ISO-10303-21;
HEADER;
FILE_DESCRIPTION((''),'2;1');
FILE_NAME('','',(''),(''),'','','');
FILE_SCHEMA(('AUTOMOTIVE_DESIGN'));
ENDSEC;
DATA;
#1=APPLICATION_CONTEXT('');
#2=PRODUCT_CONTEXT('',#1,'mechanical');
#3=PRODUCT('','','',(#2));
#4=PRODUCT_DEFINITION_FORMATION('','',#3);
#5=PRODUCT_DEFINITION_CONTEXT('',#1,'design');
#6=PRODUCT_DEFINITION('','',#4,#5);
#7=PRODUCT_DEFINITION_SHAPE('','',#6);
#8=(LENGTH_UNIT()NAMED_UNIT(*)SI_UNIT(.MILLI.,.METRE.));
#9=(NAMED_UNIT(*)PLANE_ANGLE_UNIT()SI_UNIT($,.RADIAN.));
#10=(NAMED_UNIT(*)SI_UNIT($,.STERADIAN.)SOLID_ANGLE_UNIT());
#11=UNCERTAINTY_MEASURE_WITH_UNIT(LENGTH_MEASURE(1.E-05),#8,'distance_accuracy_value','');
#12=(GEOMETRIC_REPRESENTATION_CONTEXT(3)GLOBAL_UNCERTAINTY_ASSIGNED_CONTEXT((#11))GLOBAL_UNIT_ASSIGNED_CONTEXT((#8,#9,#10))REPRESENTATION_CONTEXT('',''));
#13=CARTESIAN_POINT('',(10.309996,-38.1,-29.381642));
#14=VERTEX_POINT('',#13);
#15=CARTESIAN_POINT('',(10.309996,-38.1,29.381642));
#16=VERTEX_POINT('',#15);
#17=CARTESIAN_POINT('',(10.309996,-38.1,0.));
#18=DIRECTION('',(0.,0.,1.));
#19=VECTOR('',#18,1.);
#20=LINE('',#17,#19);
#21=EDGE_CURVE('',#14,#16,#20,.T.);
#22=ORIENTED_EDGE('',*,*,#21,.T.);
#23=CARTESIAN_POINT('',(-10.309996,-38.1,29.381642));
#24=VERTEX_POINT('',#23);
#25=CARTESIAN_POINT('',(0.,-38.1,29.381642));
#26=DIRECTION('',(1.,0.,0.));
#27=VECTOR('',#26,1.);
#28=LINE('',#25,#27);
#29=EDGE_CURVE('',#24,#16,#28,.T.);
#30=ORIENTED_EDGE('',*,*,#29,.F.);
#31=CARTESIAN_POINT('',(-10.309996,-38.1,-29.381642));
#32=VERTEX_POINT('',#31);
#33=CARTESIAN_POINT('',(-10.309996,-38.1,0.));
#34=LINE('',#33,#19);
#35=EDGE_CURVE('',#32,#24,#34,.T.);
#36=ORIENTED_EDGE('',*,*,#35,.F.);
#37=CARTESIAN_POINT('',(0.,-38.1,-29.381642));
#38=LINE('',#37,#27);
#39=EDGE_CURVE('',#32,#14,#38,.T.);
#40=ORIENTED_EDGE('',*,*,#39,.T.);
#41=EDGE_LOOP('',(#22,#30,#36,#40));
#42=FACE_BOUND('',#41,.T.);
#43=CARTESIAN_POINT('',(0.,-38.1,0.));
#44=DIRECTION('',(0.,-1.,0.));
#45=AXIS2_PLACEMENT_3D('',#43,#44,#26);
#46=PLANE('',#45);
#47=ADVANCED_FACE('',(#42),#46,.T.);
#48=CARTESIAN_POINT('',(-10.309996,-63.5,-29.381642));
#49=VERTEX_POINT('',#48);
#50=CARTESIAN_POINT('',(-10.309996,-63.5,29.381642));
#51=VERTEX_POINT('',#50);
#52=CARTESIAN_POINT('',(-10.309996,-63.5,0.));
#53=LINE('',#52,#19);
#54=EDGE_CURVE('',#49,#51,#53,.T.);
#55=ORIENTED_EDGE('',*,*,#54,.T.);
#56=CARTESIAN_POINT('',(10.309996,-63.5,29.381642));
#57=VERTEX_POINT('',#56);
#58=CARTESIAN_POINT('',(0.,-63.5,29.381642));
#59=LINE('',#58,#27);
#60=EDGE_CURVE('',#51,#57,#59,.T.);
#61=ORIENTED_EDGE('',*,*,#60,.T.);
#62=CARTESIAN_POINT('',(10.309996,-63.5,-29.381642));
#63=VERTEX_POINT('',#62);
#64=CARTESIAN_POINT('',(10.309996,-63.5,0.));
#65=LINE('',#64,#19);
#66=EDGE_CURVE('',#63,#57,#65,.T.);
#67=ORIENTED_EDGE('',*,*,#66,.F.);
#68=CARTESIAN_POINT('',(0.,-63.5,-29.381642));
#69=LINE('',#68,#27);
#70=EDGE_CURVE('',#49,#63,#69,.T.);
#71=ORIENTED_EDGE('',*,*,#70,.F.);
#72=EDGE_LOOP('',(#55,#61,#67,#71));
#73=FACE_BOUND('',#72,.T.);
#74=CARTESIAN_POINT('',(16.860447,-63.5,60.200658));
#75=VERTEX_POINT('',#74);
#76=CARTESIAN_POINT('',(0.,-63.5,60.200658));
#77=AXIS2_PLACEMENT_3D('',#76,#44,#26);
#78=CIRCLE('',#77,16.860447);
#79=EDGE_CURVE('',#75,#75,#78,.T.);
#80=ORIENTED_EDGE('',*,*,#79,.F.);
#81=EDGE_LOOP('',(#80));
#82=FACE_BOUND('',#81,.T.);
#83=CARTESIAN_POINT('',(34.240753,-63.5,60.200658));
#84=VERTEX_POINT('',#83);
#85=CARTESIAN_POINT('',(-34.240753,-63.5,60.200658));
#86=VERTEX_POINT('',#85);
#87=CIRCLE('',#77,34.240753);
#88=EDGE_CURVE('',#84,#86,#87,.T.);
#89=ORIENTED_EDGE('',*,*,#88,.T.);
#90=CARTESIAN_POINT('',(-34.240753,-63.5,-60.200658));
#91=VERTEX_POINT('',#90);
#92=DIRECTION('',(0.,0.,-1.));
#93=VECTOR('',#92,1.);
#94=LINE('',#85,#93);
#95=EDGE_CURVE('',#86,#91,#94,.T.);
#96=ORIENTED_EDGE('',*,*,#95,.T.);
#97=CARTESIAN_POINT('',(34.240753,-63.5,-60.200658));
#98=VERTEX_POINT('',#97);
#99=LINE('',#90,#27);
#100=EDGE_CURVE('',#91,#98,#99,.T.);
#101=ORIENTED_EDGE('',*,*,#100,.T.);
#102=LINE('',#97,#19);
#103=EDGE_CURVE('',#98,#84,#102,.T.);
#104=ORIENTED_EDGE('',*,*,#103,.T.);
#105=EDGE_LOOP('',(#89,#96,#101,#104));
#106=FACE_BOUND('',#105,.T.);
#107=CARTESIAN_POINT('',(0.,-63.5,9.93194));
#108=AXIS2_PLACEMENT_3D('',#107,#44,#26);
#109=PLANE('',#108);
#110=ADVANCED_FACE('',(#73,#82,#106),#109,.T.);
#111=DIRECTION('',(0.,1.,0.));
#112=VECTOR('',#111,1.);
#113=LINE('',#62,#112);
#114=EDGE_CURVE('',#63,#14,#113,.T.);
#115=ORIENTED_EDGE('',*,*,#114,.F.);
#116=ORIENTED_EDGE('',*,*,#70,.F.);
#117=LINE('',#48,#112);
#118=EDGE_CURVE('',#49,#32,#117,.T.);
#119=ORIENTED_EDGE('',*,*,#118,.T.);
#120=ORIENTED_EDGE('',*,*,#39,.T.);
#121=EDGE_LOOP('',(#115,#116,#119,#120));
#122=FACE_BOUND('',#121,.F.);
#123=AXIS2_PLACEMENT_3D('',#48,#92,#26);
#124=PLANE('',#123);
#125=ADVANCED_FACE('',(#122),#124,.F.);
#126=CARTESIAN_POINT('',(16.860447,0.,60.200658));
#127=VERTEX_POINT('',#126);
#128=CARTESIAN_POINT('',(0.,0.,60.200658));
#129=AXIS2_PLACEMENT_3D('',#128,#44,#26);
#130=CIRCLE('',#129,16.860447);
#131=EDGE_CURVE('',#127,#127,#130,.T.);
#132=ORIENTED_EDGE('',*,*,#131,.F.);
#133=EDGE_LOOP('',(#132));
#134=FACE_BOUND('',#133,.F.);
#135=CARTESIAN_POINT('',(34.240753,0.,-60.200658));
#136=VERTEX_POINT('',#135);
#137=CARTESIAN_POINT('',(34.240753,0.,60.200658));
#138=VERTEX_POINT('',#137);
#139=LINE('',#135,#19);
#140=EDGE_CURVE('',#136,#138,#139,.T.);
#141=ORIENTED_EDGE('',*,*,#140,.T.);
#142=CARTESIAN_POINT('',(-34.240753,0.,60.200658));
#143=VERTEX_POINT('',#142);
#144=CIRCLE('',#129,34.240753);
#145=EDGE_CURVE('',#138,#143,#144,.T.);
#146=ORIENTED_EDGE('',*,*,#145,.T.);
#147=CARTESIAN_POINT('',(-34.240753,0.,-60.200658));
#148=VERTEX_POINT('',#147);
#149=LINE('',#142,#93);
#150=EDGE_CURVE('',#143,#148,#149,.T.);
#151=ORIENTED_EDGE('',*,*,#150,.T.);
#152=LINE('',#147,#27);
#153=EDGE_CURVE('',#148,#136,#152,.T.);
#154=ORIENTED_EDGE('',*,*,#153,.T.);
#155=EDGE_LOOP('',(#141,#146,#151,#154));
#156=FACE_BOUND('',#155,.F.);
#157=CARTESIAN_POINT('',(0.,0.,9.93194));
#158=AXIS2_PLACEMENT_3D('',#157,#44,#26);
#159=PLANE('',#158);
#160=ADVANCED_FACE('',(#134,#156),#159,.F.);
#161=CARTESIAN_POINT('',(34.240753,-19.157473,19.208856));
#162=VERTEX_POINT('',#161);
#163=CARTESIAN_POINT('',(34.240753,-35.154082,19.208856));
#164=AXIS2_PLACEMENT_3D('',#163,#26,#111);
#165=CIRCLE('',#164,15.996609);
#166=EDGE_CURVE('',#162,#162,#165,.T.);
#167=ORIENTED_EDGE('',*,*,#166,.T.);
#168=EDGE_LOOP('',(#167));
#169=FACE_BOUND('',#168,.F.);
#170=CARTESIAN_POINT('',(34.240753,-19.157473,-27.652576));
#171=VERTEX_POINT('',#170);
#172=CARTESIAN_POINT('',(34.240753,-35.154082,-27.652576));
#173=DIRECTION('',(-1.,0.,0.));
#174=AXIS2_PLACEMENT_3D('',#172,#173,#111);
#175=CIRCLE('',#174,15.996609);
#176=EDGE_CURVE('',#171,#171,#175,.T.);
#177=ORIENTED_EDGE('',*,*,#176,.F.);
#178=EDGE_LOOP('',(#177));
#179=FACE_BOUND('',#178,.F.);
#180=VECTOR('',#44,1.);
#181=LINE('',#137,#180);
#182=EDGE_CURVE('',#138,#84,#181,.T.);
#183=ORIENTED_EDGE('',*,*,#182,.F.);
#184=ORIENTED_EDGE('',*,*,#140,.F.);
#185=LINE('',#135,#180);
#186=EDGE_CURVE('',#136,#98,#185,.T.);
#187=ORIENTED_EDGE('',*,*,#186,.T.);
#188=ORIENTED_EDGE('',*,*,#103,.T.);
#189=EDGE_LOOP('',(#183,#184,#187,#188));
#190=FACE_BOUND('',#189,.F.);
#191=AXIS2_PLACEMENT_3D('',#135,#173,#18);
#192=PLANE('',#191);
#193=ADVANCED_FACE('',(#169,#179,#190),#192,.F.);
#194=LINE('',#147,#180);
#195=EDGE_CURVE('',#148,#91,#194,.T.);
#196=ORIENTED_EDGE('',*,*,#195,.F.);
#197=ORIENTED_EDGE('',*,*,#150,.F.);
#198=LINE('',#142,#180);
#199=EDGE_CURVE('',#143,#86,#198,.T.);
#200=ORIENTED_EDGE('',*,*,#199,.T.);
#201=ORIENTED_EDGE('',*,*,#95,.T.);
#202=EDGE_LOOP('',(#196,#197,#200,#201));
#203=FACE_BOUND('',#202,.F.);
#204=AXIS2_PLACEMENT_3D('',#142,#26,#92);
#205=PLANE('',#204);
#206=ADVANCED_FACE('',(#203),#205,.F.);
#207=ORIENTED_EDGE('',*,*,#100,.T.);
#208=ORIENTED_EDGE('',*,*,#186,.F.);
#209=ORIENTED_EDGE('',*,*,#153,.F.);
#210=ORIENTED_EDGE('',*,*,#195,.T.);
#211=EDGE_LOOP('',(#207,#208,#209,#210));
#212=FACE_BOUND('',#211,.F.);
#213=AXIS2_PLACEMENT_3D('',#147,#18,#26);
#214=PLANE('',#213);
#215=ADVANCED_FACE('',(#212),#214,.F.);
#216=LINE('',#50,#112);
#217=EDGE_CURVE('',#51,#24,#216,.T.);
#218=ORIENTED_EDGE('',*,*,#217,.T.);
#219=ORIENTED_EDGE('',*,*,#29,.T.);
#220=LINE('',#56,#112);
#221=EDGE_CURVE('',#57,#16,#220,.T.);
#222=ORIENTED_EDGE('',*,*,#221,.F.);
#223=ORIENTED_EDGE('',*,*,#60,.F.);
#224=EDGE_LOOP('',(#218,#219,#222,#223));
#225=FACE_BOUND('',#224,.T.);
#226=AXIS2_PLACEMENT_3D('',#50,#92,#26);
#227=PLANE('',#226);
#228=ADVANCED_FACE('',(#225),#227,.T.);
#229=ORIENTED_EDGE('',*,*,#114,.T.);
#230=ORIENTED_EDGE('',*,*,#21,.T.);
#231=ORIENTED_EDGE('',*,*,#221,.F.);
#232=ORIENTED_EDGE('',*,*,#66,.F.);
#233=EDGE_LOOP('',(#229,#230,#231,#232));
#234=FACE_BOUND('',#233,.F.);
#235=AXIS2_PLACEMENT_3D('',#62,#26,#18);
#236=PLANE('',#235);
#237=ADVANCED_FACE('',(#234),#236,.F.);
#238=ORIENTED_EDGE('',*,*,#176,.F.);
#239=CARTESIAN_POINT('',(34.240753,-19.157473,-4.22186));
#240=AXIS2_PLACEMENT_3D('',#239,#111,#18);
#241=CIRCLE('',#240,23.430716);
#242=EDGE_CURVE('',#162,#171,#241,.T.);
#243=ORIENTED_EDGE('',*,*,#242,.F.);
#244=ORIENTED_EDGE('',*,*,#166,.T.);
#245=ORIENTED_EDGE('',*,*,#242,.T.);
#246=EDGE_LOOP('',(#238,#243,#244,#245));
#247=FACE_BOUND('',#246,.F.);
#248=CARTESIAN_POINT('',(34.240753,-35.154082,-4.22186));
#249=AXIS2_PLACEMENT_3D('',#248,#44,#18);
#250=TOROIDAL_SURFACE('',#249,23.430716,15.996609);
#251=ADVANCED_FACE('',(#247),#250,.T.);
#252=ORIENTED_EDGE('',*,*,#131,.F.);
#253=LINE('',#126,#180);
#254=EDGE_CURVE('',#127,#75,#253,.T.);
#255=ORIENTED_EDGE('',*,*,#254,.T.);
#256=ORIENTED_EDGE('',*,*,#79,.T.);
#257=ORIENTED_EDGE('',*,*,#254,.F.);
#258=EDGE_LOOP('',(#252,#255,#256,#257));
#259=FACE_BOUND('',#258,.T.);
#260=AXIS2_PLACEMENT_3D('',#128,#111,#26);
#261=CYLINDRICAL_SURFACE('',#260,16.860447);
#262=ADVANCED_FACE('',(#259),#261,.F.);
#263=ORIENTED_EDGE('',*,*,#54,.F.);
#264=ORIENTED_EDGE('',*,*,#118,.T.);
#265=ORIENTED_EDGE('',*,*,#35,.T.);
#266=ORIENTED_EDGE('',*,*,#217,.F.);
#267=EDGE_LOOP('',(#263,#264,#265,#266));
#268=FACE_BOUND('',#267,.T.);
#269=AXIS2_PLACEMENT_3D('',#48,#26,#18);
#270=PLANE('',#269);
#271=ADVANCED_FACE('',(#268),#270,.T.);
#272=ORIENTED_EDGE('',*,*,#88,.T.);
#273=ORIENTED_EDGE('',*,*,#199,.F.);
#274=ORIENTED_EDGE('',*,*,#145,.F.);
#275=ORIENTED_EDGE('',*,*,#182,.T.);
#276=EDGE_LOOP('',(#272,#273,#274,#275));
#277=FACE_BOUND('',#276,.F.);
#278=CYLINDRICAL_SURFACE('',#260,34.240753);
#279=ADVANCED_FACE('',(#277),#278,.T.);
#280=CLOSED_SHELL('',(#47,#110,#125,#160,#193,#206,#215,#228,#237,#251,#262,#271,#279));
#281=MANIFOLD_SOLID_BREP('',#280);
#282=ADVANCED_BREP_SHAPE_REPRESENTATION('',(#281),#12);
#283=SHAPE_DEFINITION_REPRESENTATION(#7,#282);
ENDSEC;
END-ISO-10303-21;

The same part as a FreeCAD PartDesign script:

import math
import FreeCAD as App
import Part
import Sketcher

V = App.Vector
Q = App.Units.Quantity


def add_polygon(sketch, points):
    """Adds a closed chain of lines whose ends are joined by coincident constraints."""
    first, n = sketch.GeometryCount, len(points)
    for a, b in zip(points, points[1:] + points[:1]):
        sketch.addGeometry(Part.LineSegment(App.Vector(*a, 0), App.Vector(*b, 0)), False)
    for i in range(n):
        sketch.addConstraint(Sketcher.Constraint("Coincident", first + i, 2, first + (i + 1) % n, 1))

doc = App.newDocument("Part")
params = doc.addObject("Spreadsheet::Sheet", "Params")
for row, (alias, value) in enumerate([
    ("pad1_length", "2.5 in"),
    ("pocket1_length", "1 in"),
    ("revolution_angle", "180 deg"),
], start=1):
    params.set(f"A{row}", alias)
    params.set(f"B{row}", "=" + value)
    params.setAlias(f"B{row}", alias)

body = doc.addObject("PartDesign::Body", "Body")

sketch1 = body.newObject("Sketcher::SketchObject", "Sketch")
sketch1.AttachmentSupport = (doc.getObject("XZ_Plane"), [""])
sketch1.MapMode = "FlatFace"
sketch1.addGeometry([
    Part.LineSegment(V(-34, -60, 0), V(34, -60, 0)),
    Part.LineSegment(V(34, -60, 0), V(34, 60, 0)),
    Part.ArcOfCircle(Part.Circle(V(0, 60, 0), V(0, 0, 1), 34), math.radians(0), math.radians(180)),
    Part.LineSegment(V(-34, 60, 0), V(-34, -60, 0)),
    Part.Circle(V(0, 60, 0), V(0, 0, 1), 17),
], False)
sketch1.addConstraint([
    Sketcher.Constraint("Coincident", 0, 2, 1, 1),
    Sketcher.Constraint("Tangent", 1, 2, 2, 1),
    Sketcher.Constraint("Tangent", 2, 2, 3, 1),
    Sketcher.Constraint("Coincident", 3, 2, 0, 1),
    Sketcher.Constraint("Horizontal", 0),
    Sketcher.Constraint("Vertical", 1),
    Sketcher.Constraint("Vertical", 3),
    Sketcher.Constraint("Coincident", 4, 3, 2, 3),
    Sketcher.Constraint("Symmetric", 0, 2, 2, 2, -1, 1),
    Sketcher.Constraint("Diameter", 4, Q("33.720894 mm")),
    Sketcher.Constraint("Radius", 2, Q("34.240753 mm")),
    Sketcher.Constraint("DistanceY", 1, 1, 1, 2, Q("120.401316 mm")),
])
pad1 = body.newObject("PartDesign::Pad", "Pad")
pad1.Profile = sketch1
pad1.setExpression("Length", "Params.pad1_length")

sketch2 = body.newObject("Sketcher::SketchObject", "Sketch001")
sketch2.AttachmentSupport = (doc.getObject("XZ_Plane"), [""])
sketch2.MapMode = "FlatFace"
sketch2.AttachmentOffset = App.Placement(V(0, 0, 2.5 * 25.4), App.Rotation())
add_polygon(sketch2, [(-10, 29), (-10, -29), (10, -29), (10, 29)])
sketch2.addConstraint([
    Sketcher.Constraint("Vertical", 0),
    Sketcher.Constraint("Horizontal", 1),
    Sketcher.Constraint("Vertical", 2),
    Sketcher.Constraint("Horizontal", 3),
    Sketcher.Constraint("Symmetric", 0, 2, 2, 2, -1, 1),
    Sketcher.Constraint("DistanceX", 1, 1, 1, 2, Q("20.619992 mm")),
    Sketcher.Constraint("DistanceY", 0, 2, 0, 1, Q("58.763284 mm")),
])
pocket1 = body.newObject("PartDesign::Pocket", "Pocket")
pocket1.Profile = sketch2
pocket1.setExpression("Length", "Params.pocket1_length")

sketch3 = body.newObject("Sketcher::SketchObject", "Sketch002")
sketch3.AttachmentSupport = (doc.getObject("YZ_Plane"), [""])
sketch3.MapMode = "FlatFace"
sketch3.AttachmentOffset = App.Placement(V(0, 0, 34.240753), App.Rotation())
sketch3.addGeometry(Part.Circle(V(-35, 19, 0), V(0, 0, 1), 16), False)
sketch3.addGeometry(Part.LineSegment(V(-35, -4, 0), V(-25, -4, 0)), True)
sketch3.addConstraint([
    Sketcher.Constraint("Horizontal", 1),
    Sketcher.Constraint("Vertical", 0, 3, 1, 1),
    Sketcher.Constraint("Diameter", 0, Q("31.993218 mm")),
    Sketcher.Constraint("DistanceX", 1, 1, 1, 2, Q("10 mm")),
    Sketcher.Constraint("DistanceY", 1, 1, -1, 1, Q("4.22186 mm")),
    Sketcher.Constraint("DistanceX", 1, 2, -1, 1, Q("25.154082 mm")),
    Sketcher.Constraint("DistanceY", -1, 1, 0, 3, Q("19.208856 mm")),
])
revolution = body.newObject("PartDesign::Revolution", "Revolution")
revolution.Profile = sketch3
revolution.ReferenceAxis = (sketch3, ["Axis0"])
revolution.setExpression("Angle", "Params.revolution_angle")

doc.recompute()
